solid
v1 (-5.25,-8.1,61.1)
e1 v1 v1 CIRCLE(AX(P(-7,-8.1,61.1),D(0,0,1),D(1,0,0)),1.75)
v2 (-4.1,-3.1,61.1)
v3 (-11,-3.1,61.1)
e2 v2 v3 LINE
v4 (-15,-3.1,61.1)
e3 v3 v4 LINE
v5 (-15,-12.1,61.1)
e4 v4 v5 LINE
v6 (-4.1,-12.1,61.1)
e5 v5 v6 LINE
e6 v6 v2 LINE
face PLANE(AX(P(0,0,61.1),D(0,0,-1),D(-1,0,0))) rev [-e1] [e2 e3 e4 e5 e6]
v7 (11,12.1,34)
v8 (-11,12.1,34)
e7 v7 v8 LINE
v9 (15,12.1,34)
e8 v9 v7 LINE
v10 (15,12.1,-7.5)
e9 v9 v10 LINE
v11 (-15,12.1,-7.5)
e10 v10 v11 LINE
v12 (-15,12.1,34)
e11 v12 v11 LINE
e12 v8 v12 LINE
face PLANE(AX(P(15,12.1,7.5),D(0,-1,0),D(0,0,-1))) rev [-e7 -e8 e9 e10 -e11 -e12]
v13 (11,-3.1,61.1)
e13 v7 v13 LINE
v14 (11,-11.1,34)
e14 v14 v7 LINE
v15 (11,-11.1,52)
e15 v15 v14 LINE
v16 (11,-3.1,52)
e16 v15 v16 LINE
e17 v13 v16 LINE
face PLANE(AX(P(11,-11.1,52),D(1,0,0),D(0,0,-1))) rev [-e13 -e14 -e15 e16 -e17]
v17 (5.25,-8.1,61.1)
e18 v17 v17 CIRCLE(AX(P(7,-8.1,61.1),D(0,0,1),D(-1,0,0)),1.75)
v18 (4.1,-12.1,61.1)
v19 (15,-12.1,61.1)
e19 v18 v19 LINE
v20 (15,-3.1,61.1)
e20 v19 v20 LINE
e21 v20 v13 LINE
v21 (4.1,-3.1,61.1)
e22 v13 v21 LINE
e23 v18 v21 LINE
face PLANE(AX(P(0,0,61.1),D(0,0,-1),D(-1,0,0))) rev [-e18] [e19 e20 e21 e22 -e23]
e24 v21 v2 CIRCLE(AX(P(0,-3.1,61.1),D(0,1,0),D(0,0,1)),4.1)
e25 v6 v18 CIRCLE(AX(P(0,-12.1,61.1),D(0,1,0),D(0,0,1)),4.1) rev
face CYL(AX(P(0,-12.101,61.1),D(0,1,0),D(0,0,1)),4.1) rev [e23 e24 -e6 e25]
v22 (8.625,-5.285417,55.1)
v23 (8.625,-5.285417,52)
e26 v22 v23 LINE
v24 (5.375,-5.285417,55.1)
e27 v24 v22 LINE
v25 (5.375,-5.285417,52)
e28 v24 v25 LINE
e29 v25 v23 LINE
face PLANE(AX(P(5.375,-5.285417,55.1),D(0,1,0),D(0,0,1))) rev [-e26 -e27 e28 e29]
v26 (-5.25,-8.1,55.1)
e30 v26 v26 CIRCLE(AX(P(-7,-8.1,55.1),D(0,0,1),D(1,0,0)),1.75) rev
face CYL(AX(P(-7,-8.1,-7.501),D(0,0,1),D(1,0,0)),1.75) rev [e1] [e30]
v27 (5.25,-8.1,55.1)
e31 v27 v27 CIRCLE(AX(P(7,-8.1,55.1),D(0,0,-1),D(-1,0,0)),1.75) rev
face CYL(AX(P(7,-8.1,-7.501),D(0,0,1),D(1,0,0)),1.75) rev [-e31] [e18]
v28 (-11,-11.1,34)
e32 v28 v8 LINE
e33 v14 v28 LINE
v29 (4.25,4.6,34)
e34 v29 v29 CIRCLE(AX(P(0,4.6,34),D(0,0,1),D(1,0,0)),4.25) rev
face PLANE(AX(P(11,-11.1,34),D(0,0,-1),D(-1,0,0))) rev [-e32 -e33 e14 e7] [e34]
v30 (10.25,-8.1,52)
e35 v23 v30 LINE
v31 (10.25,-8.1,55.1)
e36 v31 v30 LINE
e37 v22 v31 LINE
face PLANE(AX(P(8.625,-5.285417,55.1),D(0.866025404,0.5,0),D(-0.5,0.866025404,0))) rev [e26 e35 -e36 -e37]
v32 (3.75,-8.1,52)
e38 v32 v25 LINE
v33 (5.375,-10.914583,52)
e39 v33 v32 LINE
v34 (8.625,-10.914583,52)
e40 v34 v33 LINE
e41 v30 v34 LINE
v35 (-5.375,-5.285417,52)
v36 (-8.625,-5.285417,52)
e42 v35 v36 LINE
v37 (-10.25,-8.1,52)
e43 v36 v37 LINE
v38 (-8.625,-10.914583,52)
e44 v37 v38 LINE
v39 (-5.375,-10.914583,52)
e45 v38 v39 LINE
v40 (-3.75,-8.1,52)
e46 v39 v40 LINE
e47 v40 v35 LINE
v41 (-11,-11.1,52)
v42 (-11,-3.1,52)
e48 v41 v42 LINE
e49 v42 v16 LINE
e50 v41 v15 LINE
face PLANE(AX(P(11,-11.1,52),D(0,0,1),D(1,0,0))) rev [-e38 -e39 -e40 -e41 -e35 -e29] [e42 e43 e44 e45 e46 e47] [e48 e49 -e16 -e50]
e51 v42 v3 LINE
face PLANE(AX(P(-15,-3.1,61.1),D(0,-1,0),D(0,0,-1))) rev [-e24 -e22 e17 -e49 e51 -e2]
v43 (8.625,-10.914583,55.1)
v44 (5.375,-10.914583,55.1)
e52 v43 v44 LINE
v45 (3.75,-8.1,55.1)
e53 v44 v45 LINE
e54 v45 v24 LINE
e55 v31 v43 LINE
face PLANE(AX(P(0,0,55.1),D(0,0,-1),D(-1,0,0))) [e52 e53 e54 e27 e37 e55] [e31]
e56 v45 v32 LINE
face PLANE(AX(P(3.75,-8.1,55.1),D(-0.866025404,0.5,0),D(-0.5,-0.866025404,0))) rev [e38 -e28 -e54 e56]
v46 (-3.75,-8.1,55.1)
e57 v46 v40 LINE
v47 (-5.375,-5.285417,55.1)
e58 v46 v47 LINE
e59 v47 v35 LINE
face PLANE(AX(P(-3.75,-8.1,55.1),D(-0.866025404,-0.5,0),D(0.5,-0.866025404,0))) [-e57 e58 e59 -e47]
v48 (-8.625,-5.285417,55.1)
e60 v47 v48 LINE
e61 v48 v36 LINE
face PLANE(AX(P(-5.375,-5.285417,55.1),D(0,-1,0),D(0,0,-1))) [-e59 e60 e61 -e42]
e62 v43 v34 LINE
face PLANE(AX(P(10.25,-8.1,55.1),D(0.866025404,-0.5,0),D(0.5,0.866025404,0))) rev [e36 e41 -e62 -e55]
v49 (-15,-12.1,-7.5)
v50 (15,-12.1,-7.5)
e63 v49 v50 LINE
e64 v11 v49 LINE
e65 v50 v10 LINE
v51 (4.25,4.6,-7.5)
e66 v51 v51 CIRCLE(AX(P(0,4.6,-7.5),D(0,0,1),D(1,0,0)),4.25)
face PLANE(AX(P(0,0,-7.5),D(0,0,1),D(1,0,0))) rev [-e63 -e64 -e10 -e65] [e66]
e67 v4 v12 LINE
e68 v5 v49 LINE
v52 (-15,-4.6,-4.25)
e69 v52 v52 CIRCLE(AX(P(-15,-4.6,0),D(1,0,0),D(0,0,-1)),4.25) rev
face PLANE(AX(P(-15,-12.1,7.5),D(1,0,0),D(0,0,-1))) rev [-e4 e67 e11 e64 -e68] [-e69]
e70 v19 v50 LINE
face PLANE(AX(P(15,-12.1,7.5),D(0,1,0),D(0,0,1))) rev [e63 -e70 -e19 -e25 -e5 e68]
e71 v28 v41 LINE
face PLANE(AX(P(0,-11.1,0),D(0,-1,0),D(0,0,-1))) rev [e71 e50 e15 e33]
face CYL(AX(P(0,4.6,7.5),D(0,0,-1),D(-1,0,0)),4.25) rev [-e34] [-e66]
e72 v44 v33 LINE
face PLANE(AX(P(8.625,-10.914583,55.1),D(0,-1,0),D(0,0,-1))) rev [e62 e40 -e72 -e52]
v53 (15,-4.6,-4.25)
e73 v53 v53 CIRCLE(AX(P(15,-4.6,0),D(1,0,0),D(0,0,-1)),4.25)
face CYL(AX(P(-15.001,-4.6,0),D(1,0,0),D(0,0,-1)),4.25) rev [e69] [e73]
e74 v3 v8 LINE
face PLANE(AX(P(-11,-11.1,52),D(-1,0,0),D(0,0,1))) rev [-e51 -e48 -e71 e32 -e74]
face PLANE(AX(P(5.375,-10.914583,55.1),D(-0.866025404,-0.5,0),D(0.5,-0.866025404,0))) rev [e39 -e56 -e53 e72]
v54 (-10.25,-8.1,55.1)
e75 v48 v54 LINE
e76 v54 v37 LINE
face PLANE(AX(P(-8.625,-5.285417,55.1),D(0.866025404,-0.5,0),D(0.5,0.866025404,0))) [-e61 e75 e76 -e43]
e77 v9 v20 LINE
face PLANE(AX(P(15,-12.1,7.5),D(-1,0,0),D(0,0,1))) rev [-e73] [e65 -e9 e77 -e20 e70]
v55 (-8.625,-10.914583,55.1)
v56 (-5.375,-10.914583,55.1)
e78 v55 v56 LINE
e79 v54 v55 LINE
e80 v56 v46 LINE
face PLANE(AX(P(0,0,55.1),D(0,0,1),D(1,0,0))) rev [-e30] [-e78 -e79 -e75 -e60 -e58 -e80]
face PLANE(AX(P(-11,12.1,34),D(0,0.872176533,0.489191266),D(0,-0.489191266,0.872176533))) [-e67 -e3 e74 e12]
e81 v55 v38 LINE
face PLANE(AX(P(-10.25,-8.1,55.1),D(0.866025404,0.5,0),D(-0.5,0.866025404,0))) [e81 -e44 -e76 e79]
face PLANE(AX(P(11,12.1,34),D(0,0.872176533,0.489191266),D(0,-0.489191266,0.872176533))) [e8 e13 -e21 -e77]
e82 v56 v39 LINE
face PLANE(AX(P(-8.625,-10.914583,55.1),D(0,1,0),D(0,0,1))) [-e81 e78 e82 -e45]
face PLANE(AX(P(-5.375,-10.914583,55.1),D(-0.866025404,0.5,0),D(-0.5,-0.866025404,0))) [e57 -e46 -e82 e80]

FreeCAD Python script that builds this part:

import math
import FreeCAD as App
import Part
import Sketcher
Q = App.Units.Quantity


def add_polygon(sketch, points):
    """Adds a closed chain of lines whose ends are joined by coincident constraints."""
    first, n = sketch.GeometryCount, len(points)
    for a, b in zip(points, points[1:] + points[:1]):
        sketch.addGeometry(Part.LineSegment(App.Vector(*a, 0), App.Vector(*b, 0)), False)
    for i in range(n):
        sketch.addConstraint(Sketcher.Constraint("Coincident", first + i, 2, first + (i + 1) % n, 1))

doc = App.newDocument("Part")
body = doc.addObject("PartDesign::Body", "Body")

# Sketch on XY plane
sketch1 = body.newObject("Sketcher::SketchObject", "Sketch")
sketch1.AttachmentSupport = (doc.getObject("XY_Plane"), [""])
sketch1.MapMode = "FlatFace"
add_polygon(sketch1, [(-15, 12.1), (-15, -12.1), (15, -12.1), (15, 12.1)])  # lines 0-3
sketch1.addGeometry(Part.Circle(App.Vector(0, 4.6, 0), App.Vector(0, 0, 1), 4.2), False)  # 4
sketch1.addConstraint([
    Sketcher.Constraint("Vertical", 0),
    Sketcher.Constraint("Horizontal", 1),
    Sketcher.Constraint("Vertical", 2),
    Sketcher.Constraint("Horizontal", 3),
    Sketcher.Constraint("Symmetric", 0, 2, 2, 2, -1, 1),
    Sketcher.Constraint("PointOnObject", 4, 3, -2),
    Sketcher.Constraint("Diameter", 4, 8.5),
    Sketcher.Constraint("DistanceX", 1, 1, 1, 2, 30.0),
    Sketcher.Constraint("DistanceY", 0, 2, 0, 1, 24.2),
    Sketcher.Constraint("DistanceY", -1, 1, 4, 3, 4.6),
])
pad1 = body.newObject("PartDesign::Pad", "Pad")
pad1.Profile = sketch1
pad1.Length = 15
pad1.Midplane = True

# Sketch on YZ plane
sketch2 = body.newObject("Sketcher::SketchObject", "Sketch001")
sketch2.AttachmentSupport = (doc.getObject("YZ_Plane"), [""])
sketch2.MapMode = "FlatFace"
sketch2.AttachmentOffset = App.Placement(App.Vector(0, 0, 15), App.Rotation())
sketch2.addGeometry(Part.Circle(App.Vector(-4.6, 0, 0), App.Vector(0, 0, 1), 4.2), False)
sketch2.addConstraint([
    Sketcher.Constraint("PointOnObject", 0, 3, -1),
    Sketcher.Constraint("Diameter", 0, 8.5),
    Sketcher.Constraint("DistanceX", 0, 3, -1, 1, 4.6),
])
pocket1 = body.newObject("PartDesign::Pocket", "Pocket")
pocket1.Profile = sketch2
pocket1.Type = "UpToFirst"

# Sketch on XY plane
sketch3 = body.newObject("Sketcher::SketchObject", "Sketch002")
sketch3.AttachmentSupport = (doc.getObject("XY_Plane"), [""])
sketch3.MapMode = "FlatFace"
sketch3.AttachmentOffset = App.Placement(App.Vector(0, 0, 7.5), App.Rotation())
add_polygon(sketch3, [(-15, -3), (-15, -12), (15, -12), (15, -3)])  # lines 0-3
sketch3.addConstraint([
    Sketcher.Constraint("Vertical", 0),
    Sketcher.Constraint("Horizontal", 1),
    Sketcher.Constraint("Vertical", 2),
    Sketcher.Constraint("Horizontal", 3),
    Sketcher.Constraint("DistanceX", 1, 1, 1, 2, 30.0),
    Sketcher.Constraint("DistanceY", 0, 2, 0, 1, 9.0),
    Sketcher.Constraint("DistanceX", 0, 2, -1, 1, 15.0),
    Sketcher.Constraint("DistanceY", 0, 2, -1, 1, 12.1),
])
pad2 = body.newObject("PartDesign::Pad", "Pad001")
pad2.Profile = sketch3
pad2.Length = 53.6

# Sketch on XZ plane
sketch4 = body.newObject("Sketcher::SketchObject", "Sketch003")
sketch4.AttachmentSupport = (doc.getObject("XZ_Plane"), [""])
sketch4.MapMode = "FlatFace"
sketch4.AttachmentOffset = App.Placement(App.Vector(0, 0, 3.1), App.Rotation())
sketch4.addGeometry([
    Part.LineSegment(App.Vector(-4.1, 61.1, 0), App.Vector(4.1, 61.1, 0)),
    Part.ArcOfCircle(Part.Circle(App.Vector(0, 61.1, 0), App.Vector(0, 0, 1), 4.1), math.radians(180), math.radians(360)),
], False)
sketch4.addConstraint([
    Sketcher.Constraint("Coincident", 0, 1, 1, 1),
    Sketcher.Constraint("Coincident", 1, 2, 0, 2),
    Sketcher.Constraint("Horizontal", 0),
    Sketcher.Constraint("PointOnObject", 1, 3, -2),
    Sketcher.Constraint("Horizontal", 1, 3, 0, 1),
    Sketcher.Constraint("Radius", 1, 4.1),
    Sketcher.Constraint("DistanceY", -1, 1, 1, 3, 61.1),
])
pocket2 = body.newObject("PartDesign::Pocket", "Pocket001")
pocket2.Profile = sketch4
pocket2.Type = "UpToFirst"
pocket2.Reversed = True

# Sketch on XZ plane
sketch5 = body.newObject("Sketcher::SketchObject", "Sketch004")
sketch5.AttachmentSupport = (doc.getObject("XZ_Plane"), [""])
sketch5.MapMode = "FlatFace"
sketch5.AttachmentOffset = App.Placement(App.Vector(0, 0, 3.1), App.Rotation())
add_polygon(sketch5, [(-11, 34), (-11, 52), (11, 52), (11, 34)])  # lines 0-3
sketch5.addConstraint([
    Sketcher.Constraint("Vertical", 0),
    Sketcher.Constraint("Horizontal", 1),
    Sketcher.Constraint("Vertical", 2),
    Sketcher.Constraint("Horizontal", 3),
    Sketcher.Constraint("DistanceX", 1, 1, 1, 2, 22.0),
    Sketcher.Constraint("DistanceY", 0, 1, 0, 2, 18.0),
    Sketcher.Constraint("DistanceX", 0, 2, -1, 1, 11.0),
    Sketcher.Constraint("DistanceY", -1, 1, 0, 2, 52.0),
])
pocket3 = body.newObject("PartDesign::Pocket", "Pocket002")
pocket3.Profile = sketch5
pocket3.Length = 8
pocket3.Reversed = True

# Sketch on XY plane
sketch6 = body.newObject("Sketcher::SketchObject", "Sketch005")
sketch6.AttachmentSupport = (doc.getObject("XY_Plane"), [""])
sketch6.MapMode = "FlatFace"
sketch6.AttachmentOffset = App.Placement(App.Vector(0, 0, 61.1), App.Rotation())
sketch6.addGeometry(Part.Circle(App.Vector(-7, -8.1, 0), App.Vector(0, 0, 1), 1.8), False)
sketch6.addConstraint([
    Sketcher.Constraint("Diameter", 0, 3.5),
    Sketcher.Constraint("DistanceX", 0, 3, -1, 1, 7.0),
    Sketcher.Constraint("DistanceY", 0, 3, -1, 1, 8.1),
])
pocket4 = body.newObject("PartDesign::Pocket", "Pocket003")
pocket4.Profile = sketch6
pocket4.Type = "UpToFirst"

# Sketch on XY plane
sketch7 = body.newObject("Sketcher::SketchObject", "Sketch006")
sketch7.AttachmentSupport = (doc.getObject("XY_Plane"), [""])
sketch7.MapMode = "FlatFace"
sketch7.AttachmentOffset = App.Placement(App.Vector(0, 0, 61.1), App.Rotation())
sketch7.addGeometry(Part.Circle(App.Vector(7, -8.1, 0), App.Vector(0, 0, 1), 1.8), False)
sketch7.addConstraint([
    Sketcher.Constraint("Diameter", 0, 3.5),
    Sketcher.Constraint("DistanceX", -1, 1, 0, 3, 7.0),
    Sketcher.Constraint("DistanceY", 0, 3, -1, 1, 8.1),
])
pocket5 = body.newObject("PartDesign::Pocket", "Pocket004")
pocket5.Profile = sketch7
pocket5.Type = "UpToFirst"

# Sketch on XY plane
sketch8 = body.newObject("Sketcher::SketchObject", "Sketch007")
sketch8.AttachmentSupport = (doc.getObject("XY_Plane"), [""])
sketch8.MapMode = "FlatFace"
sketch8.AttachmentOffset = App.Placement(App.Vector(0, 0, 52), App.Rotation())
add_polygon(sketch8, [(3.8, -8.1), (5.4, -5.3), (8.6, -5.3), (10.2, -8.1), (8.6, -10.9), (5.4, -10.9)])  # lines 0-5
add_polygon(sketch8, [(-3.8, -8.1), (-5.4, -10.9), (-8.6, -10.9), (-10.2, -8.1), (-8.6, -5.3), (-5.4, -5.3)])  # lines 6-11
sketch8.addConstraint([
    Sketcher.Constraint("Horizontal", 1),
    Sketcher.Constraint("Horizontal", 4),
    Sketcher.Constraint("Horizontal", 7),
    Sketcher.Constraint("Horizontal", 10),
    Sketcher.Constraint("Symmetric", 4, 2, 6, 2, -2),
    Sketcher.Constraint("Symmetric", 2, 2, 8, 2, -2),
    Sketcher.Constraint("Symmetric", 1, 2, 9, 2, -2),
    Sketcher.Constraint("Symmetric", 5, 2, 11, 2, -2),
    Sketcher.Constraint("Parallel", 0, 3),
    Sketcher.Constraint("Parallel", 2, 5),
    Sketcher.Constraint("Parallel", 3, 6),
    Sketcher.Constraint("Parallel", 5, 8),
    Sketcher.Constraint("Parallel", 8, 11),
    Sketcher.Constraint("Horizontal", 2, 2, 5, 2),
    Sketcher.Constraint("Vertical", 1, 2, 3, 2),
    Sketcher.Constraint("Angle", 0, Q("60 deg")),
    Sketcher.Constraint("DistanceX", 6, 2, 3, 2, 14.0),
    Sketcher.Constraint("DistanceX", 1, 1, 1, 2, 3.25),
    Sketcher.Constraint("DistanceY", 2, 2, -1, 1, 8.1),
    Sketcher.Constraint("DistanceX", 5, 2, 2, 2, 6.5),
])
pocket6 = body.newObject("PartDesign::Pocket", "Pocket005")
pocket6.Profile = sketch8
pocket6.Length = 3.1
pocket6.Reversed = True

# Sketch on XY plane
sketch9 = body.newObject("Sketcher::SketchObject", "Sketch008")
sketch9.AttachmentSupport = (doc.getObject("XY_Plane"), [""])
sketch9.MapMode = "FlatFace"
sketch9.AttachmentOffset = App.Placement(App.Vector(0, 0, 7.5), App.Rotation())
add_polygon(sketch9, [(-15, 12.1), (-15, -3.1), (15, -3.1), (15, 12.1)])  # lines 0-3
sketch9.addGeometry(Part.Circle(App.Vector(0, 4.6, 0), App.Vector(0, 0, 1), 4.2), False)  # 4
sketch9.addConstraint([
    Sketcher.Constraint("Vertical", 0),
    Sketcher.Constraint("Horizontal", 1),
    Sketcher.Constraint("Vertical", 2),
    Sketcher.Constraint("Horizontal", 3),
    Sketcher.Constraint("PointOnObject", 4, 3, -2),
    Sketcher.Constraint("Diameter", 4, 8.5),
    Sketcher.Constraint("DistanceX", 1, 1, 1, 2, 30.0),
    Sketcher.Constraint("DistanceY", 0, 2, 0, 1, 15.2),
    Sketcher.Constraint("DistanceX", 0, 2, -1, 1, 15.0),
    Sketcher.Constraint("DistanceY", -1, 1, 4, 3, 4.6),
    Sketcher.Constraint("DistanceY", 0, 2, -1, 1, 3.1),
])
pad3 = body.newObject("PartDesign::Pad", "Pad002")
pad3.Profile = sketch9
pad3.Length = 26.5

# Sketch on YZ plane
sketch10 = body.newObject("Sketcher::SketchObject", "Sketch009")
sketch10.AttachmentSupport = (doc.getObject("YZ_Plane"), [""])
sketch10.MapMode = "FlatFace"
sketch10.AttachmentOffset = App.Placement(App.Vector(0, 0, -15), App.Rotation())
add_polygon(sketch10, [(-3, 61), (12, 34), (-3, 34)])  # lines 0-2
sketch10.addConstraint([
    Sketcher.Constraint("Horizontal", 1),
    Sketcher.Constraint("Vertical", 2),
    Sketcher.Constraint("DistanceX", 1, 2, 1, 1, 15.2),
    Sketcher.Constraint("DistanceY", 2, 1, 2, 2, 27.1),
    Sketcher.Constraint("DistanceY", -1, 1, 0, 2, 34.0),
    Sketcher.Constraint("DistanceX", -1, 1, 0, 2, 12.1),
])
pad4 = body.newObject("PartDesign::Pad", "Pad003")
pad4.Profile = sketch10
pad4.Length = 4

# Sketch on YZ plane
sketch11 = body.newObject("Sketcher::SketchObject", "Sketch010")
sketch11.AttachmentSupport = (doc.getObject("YZ_Plane"), [""])
sketch11.MapMode = "FlatFace"
sketch11.AttachmentOffset = App.Placement(App.Vector(0, 0, 11), App.Rotation())
add_polygon(sketch11, [(12, 34), (-3, 61), (-3, 34)])  # lines 0-2
sketch11.addConstraint([
    Sketcher.Constraint("Vertical", 1),
    Sketcher.Constraint("Horizontal", 2),
    Sketcher.Constraint("DistanceX", 2, 1, 2, 2, 15.2),
    Sketcher.Constraint("DistanceY", 1, 2, 1, 1, 27.1),
    Sketcher.Constraint("DistanceY", -1, 1, 1, 2, 34.0),
    Sketcher.Constraint("DistanceX", 0, 2, -1, 1, 3.1),
])
pad5 = body.newObject("PartDesign::Pad", "Pad004")
pad5.Profile = sketch11
pad5.Length = 4

doc.recompute()
